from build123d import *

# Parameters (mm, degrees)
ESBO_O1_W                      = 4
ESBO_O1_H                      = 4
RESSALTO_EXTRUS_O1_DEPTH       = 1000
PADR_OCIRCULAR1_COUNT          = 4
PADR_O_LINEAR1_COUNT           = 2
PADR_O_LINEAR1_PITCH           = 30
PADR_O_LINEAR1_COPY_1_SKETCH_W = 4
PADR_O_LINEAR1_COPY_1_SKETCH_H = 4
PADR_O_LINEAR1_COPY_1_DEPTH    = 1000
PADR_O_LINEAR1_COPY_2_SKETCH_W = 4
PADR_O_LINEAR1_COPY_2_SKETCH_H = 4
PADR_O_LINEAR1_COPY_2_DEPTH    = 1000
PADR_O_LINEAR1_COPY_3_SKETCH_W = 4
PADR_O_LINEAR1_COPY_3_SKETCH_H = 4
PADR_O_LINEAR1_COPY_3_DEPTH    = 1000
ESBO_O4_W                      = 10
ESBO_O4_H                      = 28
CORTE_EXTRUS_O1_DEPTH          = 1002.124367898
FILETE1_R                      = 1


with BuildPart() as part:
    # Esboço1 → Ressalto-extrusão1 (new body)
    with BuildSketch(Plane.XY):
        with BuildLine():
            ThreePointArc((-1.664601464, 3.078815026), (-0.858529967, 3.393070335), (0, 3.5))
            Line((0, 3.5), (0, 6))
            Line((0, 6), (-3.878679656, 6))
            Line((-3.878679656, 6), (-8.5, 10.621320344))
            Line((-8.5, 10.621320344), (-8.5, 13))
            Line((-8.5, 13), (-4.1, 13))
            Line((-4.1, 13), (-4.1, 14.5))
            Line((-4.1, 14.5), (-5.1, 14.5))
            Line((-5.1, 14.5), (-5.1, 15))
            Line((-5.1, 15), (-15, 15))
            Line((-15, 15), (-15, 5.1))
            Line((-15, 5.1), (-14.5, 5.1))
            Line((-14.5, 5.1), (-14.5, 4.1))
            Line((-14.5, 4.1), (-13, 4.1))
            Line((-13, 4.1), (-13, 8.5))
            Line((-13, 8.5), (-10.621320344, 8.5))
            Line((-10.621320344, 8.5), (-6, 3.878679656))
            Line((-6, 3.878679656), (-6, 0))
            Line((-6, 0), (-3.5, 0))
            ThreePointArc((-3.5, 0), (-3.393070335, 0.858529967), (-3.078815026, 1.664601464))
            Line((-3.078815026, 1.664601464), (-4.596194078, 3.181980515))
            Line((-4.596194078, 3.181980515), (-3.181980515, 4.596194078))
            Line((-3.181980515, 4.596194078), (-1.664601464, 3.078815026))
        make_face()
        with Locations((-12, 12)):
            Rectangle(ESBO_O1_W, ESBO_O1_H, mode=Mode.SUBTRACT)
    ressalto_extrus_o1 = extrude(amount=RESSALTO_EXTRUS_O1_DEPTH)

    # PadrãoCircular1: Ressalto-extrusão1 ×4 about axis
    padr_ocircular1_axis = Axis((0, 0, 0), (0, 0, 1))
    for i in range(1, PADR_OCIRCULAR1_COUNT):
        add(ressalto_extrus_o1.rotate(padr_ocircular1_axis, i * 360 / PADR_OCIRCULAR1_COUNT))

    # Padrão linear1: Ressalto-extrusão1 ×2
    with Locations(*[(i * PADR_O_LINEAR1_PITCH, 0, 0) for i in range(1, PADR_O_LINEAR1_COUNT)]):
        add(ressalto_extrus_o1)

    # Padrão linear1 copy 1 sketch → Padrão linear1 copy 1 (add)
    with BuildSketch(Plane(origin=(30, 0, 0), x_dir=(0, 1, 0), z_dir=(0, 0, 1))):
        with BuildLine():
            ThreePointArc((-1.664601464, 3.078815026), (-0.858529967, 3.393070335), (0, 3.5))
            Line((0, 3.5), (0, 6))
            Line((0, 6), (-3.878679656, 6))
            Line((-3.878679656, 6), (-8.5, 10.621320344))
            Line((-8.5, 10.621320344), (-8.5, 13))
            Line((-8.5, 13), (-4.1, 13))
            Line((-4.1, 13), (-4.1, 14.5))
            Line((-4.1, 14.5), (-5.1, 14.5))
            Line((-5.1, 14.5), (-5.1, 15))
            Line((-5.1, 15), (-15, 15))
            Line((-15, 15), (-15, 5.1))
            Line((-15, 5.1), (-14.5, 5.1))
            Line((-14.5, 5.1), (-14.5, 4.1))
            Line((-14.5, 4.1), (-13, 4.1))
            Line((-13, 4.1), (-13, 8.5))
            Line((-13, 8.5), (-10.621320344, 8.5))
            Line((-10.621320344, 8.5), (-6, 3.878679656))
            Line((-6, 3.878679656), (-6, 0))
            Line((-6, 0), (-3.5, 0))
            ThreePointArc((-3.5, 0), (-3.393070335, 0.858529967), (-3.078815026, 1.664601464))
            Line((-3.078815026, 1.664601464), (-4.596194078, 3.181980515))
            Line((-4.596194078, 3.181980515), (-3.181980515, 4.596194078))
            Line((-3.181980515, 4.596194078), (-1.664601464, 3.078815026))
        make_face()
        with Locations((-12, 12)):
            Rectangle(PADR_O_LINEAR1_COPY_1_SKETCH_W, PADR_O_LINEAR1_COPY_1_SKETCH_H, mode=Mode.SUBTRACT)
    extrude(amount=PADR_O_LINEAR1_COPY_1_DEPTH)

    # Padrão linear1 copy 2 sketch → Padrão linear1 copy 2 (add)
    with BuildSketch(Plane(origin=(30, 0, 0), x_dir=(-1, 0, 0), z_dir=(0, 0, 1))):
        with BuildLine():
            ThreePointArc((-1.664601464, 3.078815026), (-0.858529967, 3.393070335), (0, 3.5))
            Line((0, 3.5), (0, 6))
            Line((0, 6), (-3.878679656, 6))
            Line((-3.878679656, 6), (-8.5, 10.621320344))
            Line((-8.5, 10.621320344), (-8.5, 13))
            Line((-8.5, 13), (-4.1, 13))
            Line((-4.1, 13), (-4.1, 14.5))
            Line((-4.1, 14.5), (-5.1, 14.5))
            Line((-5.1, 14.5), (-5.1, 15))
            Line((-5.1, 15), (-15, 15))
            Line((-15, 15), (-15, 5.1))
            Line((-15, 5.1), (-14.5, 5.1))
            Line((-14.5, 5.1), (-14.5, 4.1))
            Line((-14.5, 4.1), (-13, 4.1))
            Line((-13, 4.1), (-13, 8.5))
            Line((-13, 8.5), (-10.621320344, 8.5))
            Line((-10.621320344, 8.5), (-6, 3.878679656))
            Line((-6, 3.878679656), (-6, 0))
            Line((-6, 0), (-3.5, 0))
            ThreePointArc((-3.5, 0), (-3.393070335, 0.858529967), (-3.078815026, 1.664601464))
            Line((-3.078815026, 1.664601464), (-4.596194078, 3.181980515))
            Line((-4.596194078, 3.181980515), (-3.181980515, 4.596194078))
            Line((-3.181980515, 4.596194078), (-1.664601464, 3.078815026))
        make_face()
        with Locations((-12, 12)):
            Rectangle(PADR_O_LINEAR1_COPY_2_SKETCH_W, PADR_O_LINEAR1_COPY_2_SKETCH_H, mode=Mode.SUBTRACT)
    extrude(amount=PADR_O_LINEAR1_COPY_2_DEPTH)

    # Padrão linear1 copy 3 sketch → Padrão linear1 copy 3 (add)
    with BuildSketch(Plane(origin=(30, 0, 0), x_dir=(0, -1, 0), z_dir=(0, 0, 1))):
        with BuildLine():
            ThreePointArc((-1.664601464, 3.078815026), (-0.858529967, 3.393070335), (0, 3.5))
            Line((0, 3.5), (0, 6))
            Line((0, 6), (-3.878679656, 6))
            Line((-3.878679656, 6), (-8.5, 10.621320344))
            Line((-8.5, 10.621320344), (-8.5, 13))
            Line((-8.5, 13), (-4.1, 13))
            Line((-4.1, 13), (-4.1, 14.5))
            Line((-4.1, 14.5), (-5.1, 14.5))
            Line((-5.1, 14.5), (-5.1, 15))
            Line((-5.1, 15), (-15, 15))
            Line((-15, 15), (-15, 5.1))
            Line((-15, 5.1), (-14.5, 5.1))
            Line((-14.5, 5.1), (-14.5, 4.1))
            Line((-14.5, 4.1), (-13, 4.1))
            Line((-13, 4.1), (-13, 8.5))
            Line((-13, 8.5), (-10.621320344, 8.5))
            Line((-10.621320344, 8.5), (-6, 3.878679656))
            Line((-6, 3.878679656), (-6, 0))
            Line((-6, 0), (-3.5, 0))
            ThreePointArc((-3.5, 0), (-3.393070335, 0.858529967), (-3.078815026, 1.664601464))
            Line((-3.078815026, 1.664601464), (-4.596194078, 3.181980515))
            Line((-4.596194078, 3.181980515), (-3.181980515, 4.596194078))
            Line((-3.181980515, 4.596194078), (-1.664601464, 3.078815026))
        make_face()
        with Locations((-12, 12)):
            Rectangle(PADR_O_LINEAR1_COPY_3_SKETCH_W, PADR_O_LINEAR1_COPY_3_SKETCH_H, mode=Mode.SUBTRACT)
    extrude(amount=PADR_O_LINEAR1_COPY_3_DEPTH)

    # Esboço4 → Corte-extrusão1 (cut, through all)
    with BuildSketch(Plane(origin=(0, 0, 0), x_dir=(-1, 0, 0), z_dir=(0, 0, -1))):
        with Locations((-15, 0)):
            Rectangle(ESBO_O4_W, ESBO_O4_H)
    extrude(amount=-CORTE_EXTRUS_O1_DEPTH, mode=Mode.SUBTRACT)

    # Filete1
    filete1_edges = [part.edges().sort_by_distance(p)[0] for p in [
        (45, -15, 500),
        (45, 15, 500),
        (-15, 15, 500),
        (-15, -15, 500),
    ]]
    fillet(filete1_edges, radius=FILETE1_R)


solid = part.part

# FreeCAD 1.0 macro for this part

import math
import FreeCAD as App
import Part
import Sketcher

V = App.Vector
Q = App.Units.Quantity


def edges_at(feature, points):
    """Names of the edges that pass closest to the given points."""
    edges = feature.Shape.Edges
    near = lambda p: min(range(len(edges)), key=lambda i: edges[i].distToShape(Part.Vertex(*p))[0])
    return sorted({f"Edge{near(p) + 1}" for p in points})


def add_polygon(sketch, points):
    """Adds a closed chain of lines whose ends are joined by coincident constraints."""
    first, n = sketch.GeometryCount, len(points)
    for a, b in zip(points, points[1:] + points[:1]):
        sketch.addGeometry(Part.LineSegment(App.Vector(*a, 0), App.Vector(*b, 0)), False)
    for i in range(n):
        sketch.addConstraint(Sketcher.Constraint("Coincident", first + i, 2, first + (i + 1) % n, 1))

doc = App.newDocument("Part")
params = doc.addObject("Spreadsheet::Sheet", "Params")
for row, (alias, value) in enumerate([
    ("sketch1_radius", "3.5 mm"),
    ("sketch1_width", "1 mm"),
    ("sketch1_width2", "4 mm"),
    ("sketch1_length", "2 mm"),
    ("sketch1_width3", "4.4 mm"),
    ("pad1_length", "1000 mm"),
    ("linearpattern_pitch", "30 mm"),
    ("sketch2_radius", "3.5 mm"),
    ("sketch2_width", "1 mm"),
    ("sketch2_width2", "4 mm"),
    ("sketch2_length", "2 mm"),
    ("sketch2_width3", "2.5 mm"),
    ("pad2_length", "1000 mm"),
    ("sketch3_radius", "3.5 mm"),
    ("sketch3_width", "1 mm"),
    ("sketch3_width2", "4 mm"),
    ("sketch3_length", "2 mm"),
    ("sketch3_width3", "4.4 mm"),
    ("pad3_length", "1000 mm"),
    ("sketch4_radius", "3.5 mm"),
    ("sketch4_width", "1 mm"),
    ("sketch4_width2", "4 mm"),
    ("sketch4_length", "2 mm"),
    ("sketch4_width3", "2.5 mm"),
    ("pad4_length", "1000 mm"),
    ("sketch5_width", "10 mm"),
    ("sketch5_height", "28 mm"),
    ("fillet_radius", "1 mm"),
], start=1):
    params.set(f"A{row}", alias)
    params.set(f"B{row}", "=" + value)
    params.setAlias(f"B{row}", alias)

body = doc.addObject("PartDesign::Body", "Body")

sketch1 = doc.addObject("Sketcher::SketchObject", "Sketch")
body.addObject(sketch1)
sketch1.AttachmentSupport = (doc.XY_Plane, [""])
sketch1.MapMode = "FlatFace"
sketch1.addGeometry(Part.ArcOfCircle(Part.Circle(V(0, 0, 0), V(0, 0, 1), 3.5), math.radians(90), math.radians(118.39845)), False)
sketch1.addGeometry(Part.LineSegment(V(0, 3.5, 0), V(0, 6, 0)), False)
sketch1.addGeometry(Part.LineSegment(V(0, 6, 0), V(-3.87868, 6, 0)), False)
sketch1.addGeometry(Part.LineSegment(V(-3.87868, 6, 0), V(-8.5, 10.62132, 0)), False)
sketch1.addGeometry(Part.LineSegment(V(-8.5, 10.62132, 0), V(-8.5, 13, 0)), False)
sketch1.addGeometry(Part.LineSegment(V(-8.5, 13, 0), V(-4.1, 13, 0)), False)
sketch1.addGeometry(Part.LineSegment(V(-4.1, 13, 0), V(-4.1, 14.5, 0)), False)
sketch1.addGeometry(Part.LineSegment(V(-4.1, 14.5, 0), V(-5.1, 14.5, 0)), False)
sketch1.addGeometry(Part.LineSegment(V(-5.1, 14.5, 0), V(-5.1, 15, 0)), False)
sketch1.addGeometry(Part.LineSegment(V(-5.1, 15, 0), V(-15, 15, 0)), False)
sketch1.addGeometry(Part.LineSegment(V(-15, 15, 0), V(-15, 5.1, 0)), False)
sketch1.addGeometry(Part.LineSegment(V(-15, 5.1, 0), V(-14.5, 5.1, 0)), False)
sketch1.addGeometry(Part.LineSegment(V(-14.5, 5.1, 0), V(-14.5, 4.1, 0)), False)
sketch1.addGeometry(Part.LineSegment(V(-14.5, 4.1, 0), V(-13, 4.1, 0)), False)
sketch1.addGeometry(Part.LineSegment(V(-13, 4.1, 0), V(-13, 8.5, 0)), False)
sketch1.addGeometry(Part.LineSegment(V(-13, 8.5, 0), V(-10.62132, 8.5, 0)), False)
sketch1.addGeometry(Part.LineSegment(V(-10.62132, 8.5, 0), V(-6, 3.87868, 0)), False)
sketch1.addGeometry(Part.LineSegment(V(-6, 3.87868, 0), V(-6, 0, 0)), False)
sketch1.addGeometry(Part.LineSegment(V(-6, 0, 0), V(-3.5, 0, 0)), False)
sketch1.addGeometry(Part.ArcOfCircle(Part.Circle(V(0, 0, 0), V(0, 0, 1), 3.5), math.radians(151.60155), math.radians(180)), False)
sketch1.addGeometry(Part.LineSegment(V(-3.078815, 1.664601, 0), V(-4.596194, 3.181981, 0)), False)
sketch1.addGeometry(Part.LineSegment(V(-4.596194, 3.181981, 0), V(-3.181981, 4.596194, 0)), False)
sketch1.addGeometry(Part.LineSegment(V(-3.181981, 4.596194, 0), V(-1.664601, 3.078815, 0)), False)
add_polygon(sketch1, [(-10, 10), (-14, 10), (-14, 14), (-10, 14)])
sketch1.addConstraint([
    Sketcher.Constraint("Coincident", 0, 1, 1, 1),
    Sketcher.Constraint("Coincident", 1, 2, 2, 1),
    Sketcher.Constraint("Coincident", 2, 2, 3, 1),
    Sketcher.Constraint("Coincident", 3, 2, 4, 1),
    Sketcher.Constraint("Coincident", 4, 2, 5, 1),
    Sketcher.Constraint("Coincident", 5, 2, 6, 1),
    Sketcher.Constraint("Coincident", 6, 2, 7, 1),
    Sketcher.Constraint("Coincident", 7, 2, 8, 1),
    Sketcher.Constraint("Coincident", 8, 2, 9, 1),
    Sketcher.Constraint("Coincident", 9, 2, 10, 1),
    Sketcher.Constraint("Coincident", 10, 2, 11, 1),
    Sketcher.Constraint("Coincident", 11, 2, 12, 1),
    Sketcher.Constraint("Coincident", 12, 2, 13, 1),
    Sketcher.Constraint("Coincident", 13, 2, 14, 1),
    Sketcher.Constraint("Coincident", 14, 2, 15, 1),
    Sketcher.Constraint("Coincident", 15, 2, 16, 1),
    Sketcher.Constraint("Coincident", 16, 2, 17, 1),
    Sketcher.Constraint("Coincident", 17, 2, 18, 1),
    Sketcher.Constraint("Coincident", 18, 2, 19, 2),
    Sketcher.Constraint("Coincident", 19, 1, 20, 1),
    Sketcher.Constraint("Coincident", 20, 2, 21, 1),
    Sketcher.Constraint("Coincident", 21, 2, 22, 1),
    Sketcher.Constraint("Coincident", 22, 2, 0, 2),
    Sketcher.Constraint("Vertical", 1),
    Sketcher.Constraint("Horizontal", 2),
    Sketcher.Constraint("Vertical", 4),
    Sketcher.Constraint("Horizontal", 5),
    Sketcher.Constraint("Vertical", 6),
    Sketcher.Constraint("Horizontal", 7),
    Sketcher.Constraint("Vertical", 8),
    Sketcher.Constraint("Horizontal", 9),
    Sketcher.Constraint("Vertical", 10),
    Sketcher.Constraint("Horizontal", 11),
    Sketcher.Constraint("Vertical", 12),
    Sketcher.Constraint("Horizontal", 13),
    Sketcher.Constraint("Vertical", 14),
    Sketcher.Constraint("Horizontal", 15),
    Sketcher.Constraint("Vertical", 17),
    Sketcher.Constraint("Horizontal", 18),
    Sketcher.Constraint("Horizontal", 23),
    Sketcher.Constraint("Vertical", 24),
    Sketcher.Constraint("Horizontal", 25),
    Sketcher.Constraint("Vertical", 26),
    Sketcher.Constraint("Coincident", 0, 3, -1, 1),
    Sketcher.Constraint("Coincident", 19, 3, -1, 1),
    Sketcher.Constraint("Equal", 0, 19),
    Sketcher.Constraint("PointOnObject", 0, 1, -2),
    Sketcher.Constraint("PointOnObject", 17, 2, -1),
    Sketcher.Constraint("Parallel", 3, 16),
    Sketcher.Constraint("Parallel", 16, 20),
    Sketcher.Constraint("Perpendicular", 20, 21),
    Sketcher.Constraint("Perpendicular", 21, 22),
    Sketcher.Constraint("Equal", 18, 1),
    Sketcher.Constraint("Equal", 15, 4),
    Sketcher.Constraint("Equal", 13, 6),
    Sketcher.Constraint("Equal", 11, 8),
    Sketcher.Constraint("Equal", 9, 10),
    Sketcher.Constraint("Equal", 7, 12),
    Sketcher.Constraint("Equal", 5, 14),
    Sketcher.Constraint("Equal", 2, 17),
    Sketcher.Constraint("Equal", 25, 24),
    Sketcher.Constraint("Equal", 20, 22),
    Sketcher.Constraint("Radius", 0, Q("3.5 mm")),
    Sketcher.Constraint("DistanceX", 7, 2, 7, 1, Q("1 mm")),
    Sketcher.Constraint("DistanceX", 23, 2, 23, 1, Q("4 mm")),
    Sketcher.Constraint("Angle", 3, Q("135 deg")),
    Sketcher.Constraint("Distance", 21, Q("2 mm")),
    Sketcher.Constraint("DistanceX", 5, 1, 5, 2, Q("4.4 mm")),
    Sketcher.Constraint("DistanceX", 9, 2, 9, 1, Q("9.9 mm")),
    Sketcher.Constraint("DistanceX", 11, 1, 11, 2, Q("0.5 mm")),
    Sketcher.Constraint("DistanceX", 13, 1, 13, 2, Q("1.5 mm")),
    Sketcher.Constraint("DistanceX", 18, 1, 18, 2, Q("2.5 mm")),
    Sketcher.Constraint("DistanceY", -1, 1, 4, 2, Q("13 mm")),
    Sketcher.Constraint("DistanceX", 23, 2, -1, 1, Q("14 mm")),
    Sketcher.Constraint("DistanceY", -1, 1, 23, 2, Q("10 mm")),
    Sketcher.Constraint("Distance", 20, Q("2.145898 mm")),
    Sketcher.Constraint("DistanceX", 2, 2, 2, 1, Q("3.87868 mm")),
])
sketch1.setExpression("Constraints[66]", "Params.sketch1_radius")
sketch1.setExpression("Constraints[67]", "Params.sketch1_width")
sketch1.setExpression("Constraints[68]", "Params.sketch1_width2")
sketch1.setExpression("Constraints[70]", "Params.sketch1_length")
sketch1.setExpression("Constraints[71]", "Params.sketch1_width3")
pad1 = doc.addObject("PartDesign::Pad", "Pad")
body.addObject(pad1)
pad1.Profile = sketch1
pad1.setExpression("Length", "Params.pad1_length")
doc.recompute()

polarpattern = doc.addObject("PartDesign::PolarPattern", "PolarPattern")
body.addObject(polarpattern)
polarpattern.Originals = [pad1]
polarpattern.Axis = (doc.Z_Axis, [""])
polarpattern.Angle = 360
polarpattern.Occurrences = 4
body.Tip = polarpattern
doc.recompute()

linearpattern = doc.addObject("PartDesign::LinearPattern", "LinearPattern")
body.addObject(linearpattern)
linearpattern.Originals = [pad1]
linearpattern.Direction = (doc.X_Axis, [""])
linearpattern.Mode = "offset"
linearpattern.setExpression("Offset", "Params.linearpattern_pitch")
linearpattern.Occurrences = 2
body.Tip = linearpattern

sketch2 = doc.addObject("Sketcher::SketchObject", "Sketch001")
body.addObject(sketch2)
sketch2.AttachmentSupport = (doc.XY_Plane, [""])
sketch2.MapMode = "FlatFace"
sketch2.addGeometry(Part.ArcOfCircle(Part.Circle(V(30, 0, 0), V(0, 0, 1), 3.5), math.radians(180), math.radians(208.39845)), False)
sketch2.addGeometry(Part.LineSegment(V(26.5, 0, 0), V(24, 0, 0)), False)
sketch2.addGeometry(Part.LineSegment(V(24, 0, 0), V(24, -3.87868, 0)), False)
sketch2.addGeometry(Part.LineSegment(V(24, -3.87868, 0), V(19.37868, -8.5, 0)), False)
sketch2.addGeometry(Part.LineSegment(V(19.37868, -8.5, 0), V(17, -8.5, 0)), False)
sketch2.addGeometry(Part.LineSegment(V(17, -8.5, 0), V(17, -4.1, 0)), False)
sketch2.addGeometry(Part.LineSegment(V(17, -4.1, 0), V(15.5, -4.1, 0)), False)
sketch2.addGeometry(Part.LineSegment(V(15.5, -4.1, 0), V(15.5, -5.1, 0)), False)
sketch2.addGeometry(Part.LineSegment(V(15.5, -5.1, 0), V(15, -5.1, 0)), False)
sketch2.addGeometry(Part.LineSegment(V(15, -5.1, 0), V(15, -15, 0)), False)
sketch2.addGeometry(Part.LineSegment(V(15, -15, 0), V(24.9, -15, 0)), False)
sketch2.addGeometry(Part.LineSegment(V(24.9, -15, 0), V(24.9, -14.5, 0)), False)
sketch2.addGeometry(Part.LineSegment(V(24.9, -14.5, 0), V(25.9, -14.5, 0)), False)
sketch2.addGeometry(Part.LineSegment(V(25.9, -14.5, 0), V(25.9, -13, 0)), False)
sketch2.addGeometry(Part.LineSegment(V(25.9, -13, 0), V(21.5, -13, 0)), False)
sketch2.addGeometry(Part.LineSegment(V(21.5, -13, 0), V(21.5, -10.62132, 0)), False)
sketch2.addGeometry(Part.LineSegment(V(21.5, -10.62132, 0), V(26.12132, -6, 0)), False)
sketch2.addGeometry(Part.LineSegment(V(26.12132, -6, 0), V(30, -6, 0)), False)
sketch2.addGeometry(Part.LineSegment(V(30, -6, 0), V(30, -3.5, 0)), False)
sketch2.addGeometry(Part.ArcOfCircle(Part.Circle(V(30, 0, 0), V(0, 0, 1), 3.5), math.radians(-118.39845), math.radians(-90)), False)
sketch2.addGeometry(Part.LineSegment(V(28.335399, -3.078815, 0), V(26.818019, -4.596194, 0)), False)
sketch2.addGeometry(Part.LineSegment(V(26.818019, -4.596194, 0), V(25.403806, -3.181981, 0)), False)
sketch2.addGeometry(Part.LineSegment(V(25.403806, -3.181981, 0), V(26.921185, -1.664601, 0)), False)
add_polygon(sketch2, [(20, -10), (20, -14), (16, -14), (16, -10)])
sketch2.addConstraint([
    Sketcher.Constraint("Coincident", 0, 1, 1, 1),
    Sketcher.Constraint("Coincident", 1, 2, 2, 1),
    Sketcher.Constraint("Coincident", 2, 2, 3, 1),
    Sketcher.Constraint("Coincident", 3, 2, 4, 1),
    Sketcher.Constraint("Coincident", 4, 2, 5, 1),
    Sketcher.Constraint("Coincident", 5, 2, 6, 1),
    Sketcher.Constraint("Coincident", 6, 2, 7, 1),
    Sketcher.Constraint("Coincident", 7, 2, 8, 1),
    Sketcher.Constraint("Coincident", 8, 2, 9, 1),
    Sketcher.Constraint("Coincident", 9, 2, 10, 1),
    Sketcher.Constraint("Coincident", 10, 2, 11, 1),
    Sketcher.Constraint("Coincident", 11, 2, 12, 1),
    Sketcher.Constraint("Coincident", 12, 2, 13, 1),
    Sketcher.Constraint("Coincident", 13, 2, 14, 1),
    Sketcher.Constraint("Coincident", 14, 2, 15, 1),
    Sketcher.Constraint("Coincident", 15, 2, 16, 1),
    Sketcher.Constraint("Coincident", 16, 2, 17, 1),
    Sketcher.Constraint("Coincident", 17, 2, 18, 1),
    Sketcher.Constraint("Coincident", 18, 2, 19, 2),
    Sketcher.Constraint("Coincident", 19, 1, 20, 1),
    Sketcher.Constraint("Coincident", 20, 2, 21, 1),
    Sketcher.Constraint("Coincident", 21, 2, 22, 1),
    Sketcher.Constraint("Coincident", 22, 2, 0, 2),
    Sketcher.Constraint("Horizontal", 1),
    Sketcher.Constraint("Vertical", 2),
    Sketcher.Constraint("Horizontal", 4),
    Sketcher.Constraint("Vertical", 5),
    Sketcher.Constraint("Horizontal", 6),
    Sketcher.Constraint("Vertical", 7),
    Sketcher.Constraint("Horizontal", 8),
    Sketcher.Constraint("Vertical", 9),
    Sketcher.Constraint("Horizontal", 10),
    Sketcher.Constraint("Vertical", 11),
    Sketcher.Constraint("Horizontal", 12),
    Sketcher.Constraint("Vertical", 13),
    Sketcher.Constraint("Horizontal", 14),
    Sketcher.Constraint("Vertical", 15),
    Sketcher.Constraint("Horizontal", 17),
    Sketcher.Constraint("Vertical", 18),
    Sketcher.Constraint("Vertical", 23),
    Sketcher.Constraint("Horizontal", 24),
    Sketcher.Constraint("Vertical", 25),
    Sketcher.Constraint("Horizontal", 26),
    Sketcher.Constraint("Coincident", 19, 3, 0, 3),
    Sketcher.Constraint("Equal", 0, 19),
    Sketcher.Constraint("PointOnObject", 0, 3, -1),
    Sketcher.Constraint("PointOnObject", 0, 1, -1),
    Sketcher.Constraint("Parallel", 3, 16),
    Sketcher.Constraint("Parallel", 16, 20),
    Sketcher.Constraint("Perpendicular", 20, 21),
    Sketcher.Constraint("Perpendicular", 21, 22),
    Sketcher.Constraint("Vertical", 19, 3, 17, 2),
    Sketcher.Constraint("Equal", 17, 2),
    Sketcher.Constraint("Equal", 14, 5),
    Sketcher.Constraint("Equal", 12, 7),
    Sketcher.Constraint("Equal", 10, 9),
    Sketcher.Constraint("Equal", 8, 11),
    Sketcher.Constraint("Equal", 6, 13),
    Sketcher.Constraint("Equal", 4, 15),
    Sketcher.Constraint("Equal", 1, 18),
    Sketcher.Constraint("Equal", 26, 23),
    Sketcher.Constraint("Equal", 20, 22),
    Sketcher.Constraint("Radius", 0, Q("3.5 mm")),
    Sketcher.Constraint("DistanceX", 12, 1, 12, 2, Q("1 mm")),
    Sketcher.Constraint("DistanceX", 24, 2, 24, 1, Q("4 mm")),
    Sketcher.Constraint("Angle", 3, Q("-135 deg")),
    Sketcher.Constraint("Distance", 21, Q("2 mm")),
    Sketcher.Constraint("DistanceX", 1, 2, 1, 1, Q("2.5 mm")),
    Sketcher.Constraint("DistanceX", 6, 2, 6, 1, Q("1.5 mm")),
    Sketcher.Constraint("DistanceX", 8, 2, 8, 1, Q("0.5 mm")),
    Sketcher.Constraint("DistanceX", 10, 1, 10, 2, Q("9.9 mm")),
    Sketcher.Constraint("DistanceX", 14, 2, 14, 1, Q("4.4 mm")),
    Sketcher.Constraint("DistanceX", -1, 1, 0, 3, Q("30 mm")),
    Sketcher.Constraint("DistanceX", -1, 1, 4, 2, Q("17 mm")),
    Sketcher.Constraint("DistanceX", -1, 1, 23, 2, Q("20 mm")),
    Sketcher.Constraint("DistanceY", 23, 2, -1, 1, Q("14 mm")),
    Sketcher.Constraint("Distance", 20, Q("2.145898 mm")),
    Sketcher.Constraint("DistanceX", 4, 2, 4, 1, Q("2.37868 mm")),
])
sketch2.setExpression("Constraints[66]", "Params.sketch2_radius")
sketch2.setExpression("Constraints[67]", "Params.sketch2_width")
sketch2.setExpression("Constraints[68]", "Params.sketch2_width2")
sketch2.setExpression("Constraints[70]", "Params.sketch2_length")
sketch2.setExpression("Constraints[71]", "Params.sketch2_width3")
pad2 = doc.addObject("PartDesign::Pad", "Pad001")
body.addObject(pad2)
pad2.Profile = sketch2
pad2.setExpression("Length", "Params.pad2_length")

sketch3 = doc.addObject("Sketcher::SketchObject", "Sketch002")
body.addObject(sketch3)
sketch3.AttachmentSupport = (doc.XY_Plane, [""])
sketch3.MapMode = "FlatFace"
sketch3.addGeometry(Part.ArcOfCircle(Part.Circle(V(30, 0, 0), V(0, 0, 1), 3.5), math.radians(-90), math.radians(-61.60155)), False)
sketch3.addGeometry(Part.LineSegment(V(30, -3.5, 0), V(30, -6, 0)), False)
sketch3.addGeometry(Part.LineSegment(V(30, -6, 0), V(33.87868, -6, 0)), False)
sketch3.addGeometry(Part.LineSegment(V(33.87868, -6, 0), V(38.5, -10.62132, 0)), False)
sketch3.addGeometry(Part.LineSegment(V(38.5, -10.62132, 0), V(38.5, -13, 0)), False)
sketch3.addGeometry(Part.LineSegment(V(38.5, -13, 0), V(34.1, -13, 0)), False)
sketch3.addGeometry(Part.LineSegment(V(34.1, -13, 0), V(34.1, -14.5, 0)), False)
sketch3.addGeometry(Part.LineSegment(V(34.1, -14.5, 0), V(35.1, -14.5, 0)), False)
sketch3.addGeometry(Part.LineSegment(V(35.1, -14.5, 0), V(35.1, -15, 0)), False)
sketch3.addGeometry(Part.LineSegment(V(35.1, -15, 0), V(45, -15, 0)), False)
sketch3.addGeometry(Part.LineSegment(V(45, -15, 0), V(45, -5.1, 0)), False)
sketch3.addGeometry(Part.LineSegment(V(45, -5.1, 0), V(44.5, -5.1, 0)), False)
sketch3.addGeometry(Part.LineSegment(V(44.5, -5.1, 0), V(44.5, -4.1, 0)), False)
sketch3.addGeometry(Part.LineSegment(V(44.5, -4.1, 0), V(43, -4.1, 0)), False)
sketch3.addGeometry(Part.LineSegment(V(43, -4.1, 0), V(43, -8.5, 0)), False)
sketch3.addGeometry(Part.LineSegment(V(43, -8.5, 0), V(40.62132, -8.5, 0)), False)
sketch3.addGeometry(Part.LineSegment(V(40.62132, -8.5, 0), V(36, -3.87868, 0)), False)
sketch3.addGeometry(Part.LineSegment(V(36, -3.87868, 0), V(36, 0, 0)), False)
sketch3.addGeometry(Part.LineSegment(V(36, 0, 0), V(33.5, 0, 0)), False)
sketch3.addGeometry(Part.ArcOfCircle(Part.Circle(V(30, 0, 0), V(0, 0, 1), 3.5), math.radians(-28.39845), math.radians(0)), False)
sketch3.addGeometry(Part.LineSegment(V(33.078815, -1.664601, 0), V(34.596194, -3.181981, 0)), False)
sketch3.addGeometry(Part.LineSegment(V(34.596194, -3.181981, 0), V(33.181981, -4.596194, 0)), False)
sketch3.addGeometry(Part.LineSegment(V(33.181981, -4.596194, 0), V(31.664601, -3.078815, 0)), False)
add_polygon(sketch3, [(40, -10), (44, -10), (44, -14), (40, -14)])
sketch3.addConstraint([
    Sketcher.Constraint("Coincident", 0, 1, 1, 1),
    Sketcher.Constraint("Coincident", 1, 2, 2, 1),
    Sketcher.Constraint("Coincident", 2, 2, 3, 1),
    Sketcher.Constraint("Coincident", 3, 2, 4, 1),
    Sketcher.Constraint("Coincident", 4, 2, 5, 1),
    Sketcher.Constraint("Coincident", 5, 2, 6, 1),
    Sketcher.Constraint("Coincident", 6, 2, 7, 1),
    Sketcher.Constraint("Coincident", 7, 2, 8, 1),
    Sketcher.Constraint("Coincident", 8, 2, 9, 1),
    Sketcher.Constraint("Coincident", 9, 2, 10, 1),
    Sketcher.Constraint("Coincident", 10, 2, 11, 1),
    Sketcher.Constraint("Coincident", 11, 2, 12, 1),
    Sketcher.Constraint("Coincident", 12, 2, 13, 1),
    Sketcher.Constraint("Coincident", 13, 2, 14, 1),
    Sketcher.Constraint("Coincident", 14, 2, 15, 1),
    Sketcher.Constraint("Coincident", 15, 2, 16, 1),
    Sketcher.Constraint("Coincident", 16, 2, 17, 1),
    Sketcher.Constraint("Coincident", 17, 2, 18, 1),
    Sketcher.Constraint("Coincident", 18, 2, 19, 2),
    Sketcher.Constraint("Coincident", 19, 1, 20, 1),
    Sketcher.Constraint("Coincident", 20, 2, 21, 1),
    Sketcher.Constraint("Coincident", 21, 2, 22, 1),
    Sketcher.Constraint("Coincident", 22, 2, 0, 2),
    Sketcher.Constraint("Vertical", 1),
    Sketcher.Constraint("Horizontal", 2),
    Sketcher.Constraint("Vertical", 4),
    Sketcher.Constraint("Horizontal", 5),
    Sketcher.Constraint("Vertical", 6),
    Sketcher.Constraint("Horizontal", 7),
    Sketcher.Constraint("Vertical", 8),
    Sketcher.Constraint("Horizontal", 9),
    Sketcher.Constraint("Vertical", 10),
    Sketcher.Constraint("Horizontal", 11),
    Sketcher.Constraint("Vertical", 12),
    Sketcher.Constraint("Horizontal", 13),
    Sketcher.Constraint("Vertical", 14),
    Sketcher.Constraint("Horizontal", 15),
    Sketcher.Constraint("Vertical", 17),
    Sketcher.Constraint("Horizontal", 18),
    Sketcher.Constraint("Horizontal", 23),
    Sketcher.Constraint("Vertical", 24),
    Sketcher.Constraint("Horizontal", 25),
    Sketcher.Constraint("Vertical", 26),
    Sketcher.Constraint("Coincident", 19, 3, 0, 3),
    Sketcher.Constraint("Equal", 0, 19),
    Sketcher.Constraint("PointOnObject", 0, 3, -1),
    Sketcher.Constraint("PointOnObject", 17, 2, -1),
    Sketcher.Constraint("Parallel", 3, 16),
    Sketcher.Constraint("Parallel", 16, 20),
    Sketcher.Constraint("Perpendicular", 20, 21),
    Sketcher.Constraint("Perpendicular", 21, 22),
    Sketcher.Constraint("Vertical", 19, 3, 0, 1),
    Sketcher.Constraint("Equal", 18, 1),
    Sketcher.Constraint("Equal", 15, 4),
    Sketcher.Constraint("Equal", 13, 6),
    Sketcher.Constraint("Equal", 11, 8),
    Sketcher.Constraint("Equal", 9, 10),
    Sketcher.Constraint("Equal", 7, 12),
    Sketcher.Constraint("Equal", 5, 14),
    Sketcher.Constraint("Equal", 2, 17),
    Sketcher.Constraint("Equal", 25, 24),
    Sketcher.Constraint("Equal", 20, 22),
    Sketcher.Constraint("Radius", 0, Q("3.5 mm")),
    Sketcher.Constraint("DistanceX", 7, 1, 7, 2, Q("1 mm")),
    Sketcher.Constraint("DistanceX", 23, 1, 23, 2, Q("4 mm")),
    Sketcher.Constraint("Angle", 3, Q("-45 deg")),
    Sketcher.Constraint("Distance", 21, Q("2 mm")),
    Sketcher.Constraint("DistanceX", 5, 2, 5, 1, Q("4.4 mm")),
    Sketcher.Constraint("DistanceX", 9, 1, 9, 2, Q("9.9 mm")),
    Sketcher.Constraint("DistanceX", 11, 2, 11, 1, Q("0.5 mm")),
    Sketcher.Constraint("DistanceX", 13, 2, 13, 1, Q("1.5 mm")),
    Sketcher.Constraint("DistanceX", 18, 2, 18, 1, Q("2.5 mm")),
    Sketcher.Constraint("DistanceX", -1, 1, 0, 3, Q("30 mm")),
    Sketcher.Constraint("DistanceY", 4, 2, -1, 1, Q("13 mm")),
    Sketcher.Constraint("DistanceX", -1, 1, 23, 2, Q("44 mm")),
    Sketcher.Constraint("DistanceY", 23, 2, -1, 1, Q("10 mm")),
    Sketcher.Constraint("Distance", 20, Q("2.145898 mm")),
    Sketcher.Constraint("DistanceX", 2, 1, 2, 2, Q("3.87868 mm")),
])
sketch3.setExpression("Constraints[66]", "Params.sketch3_radius")
sketch3.setExpression("Constraints[67]", "Params.sketch3_width")
sketch3.setExpression("Constraints[68]", "Params.sketch3_width2")
sketch3.setExpression("Constraints[70]", "Params.sketch3_length")
sketch3.setExpression("Constraints[71]", "Params.sketch3_width3")
pad3 = doc.addObject("PartDesign::Pad", "Pad002")
body.addObject(pad3)
pad3.Profile = sketch3
pad3.setExpression("Length", "Params.pad3_length")

sketch4 = doc.addObject("Sketcher::SketchObject", "Sketch003")
body.addObject(sketch4)
sketch4.AttachmentSupport = (doc.XY_Plane, [""])
sketch4.MapMode = "FlatFace"
sketch4.addGeometry(Part.ArcOfCircle(Part.Circle(V(30, 0, 0), V(0, 0, 1), 3.5), math.radians(0), math.radians(28.39845)), False)
sketch4.addGeometry(Part.LineSegment(V(33.5, 0, 0), V(36, 0, 0)), False)
sketch4.addGeometry(Part.LineSegment(V(36, 0, 0), V(36, 3.87868, 0)), False)
sketch4.addGeometry(Part.LineSegment(V(36, 3.87868, 0), V(40.62132, 8.5, 0)), False)
sketch4.addGeometry(Part.LineSegment(V(40.62132, 8.5, 0), V(43, 8.5, 0)), False)
sketch4.addGeometry(Part.LineSegment(V(43, 8.5, 0), V(43, 4.1, 0)), False)
sketch4.addGeometry(Part.LineSegment(V(43, 4.1, 0), V(44.5, 4.1, 0)), False)
sketch4.addGeometry(Part.LineSegment(V(44.5, 4.1, 0), V(44.5, 5.1, 0)), False)
sketch4.addGeometry(Part.LineSegment(V(44.5, 5.1, 0), V(45, 5.1, 0)), False)
sketch4.addGeometry(Part.LineSegment(V(45, 5.1, 0), V(45, 15, 0)), False)
sketch4.addGeometry(Part.LineSegment(V(45, 15, 0), V(35.1, 15, 0)), False)
sketch4.addGeometry(Part.LineSegment(V(35.1, 15, 0), V(35.1, 14.5, 0)), False)
sketch4.addGeometry(Part.LineSegment(V(35.1, 14.5, 0), V(34.1, 14.5, 0)), False)
sketch4.addGeometry(Part.LineSegment(V(34.1, 14.5, 0), V(34.1, 13, 0)), False)
sketch4.addGeometry(Part.LineSegment(V(34.1, 13, 0), V(38.5, 13, 0)), False)
sketch4.addGeometry(Part.LineSegment(V(38.5, 13, 0), V(38.5, 10.62132, 0)), False)
sketch4.addGeometry(Part.LineSegment(V(38.5, 10.62132, 0), V(33.87868, 6, 0)), False)
sketch4.addGeometry(Part.LineSegment(V(33.87868, 6, 0), V(30, 6, 0)), False)
sketch4.addGeometry(Part.LineSegment(V(30, 6, 0), V(30, 3.5, 0)), False)
sketch4.addGeometry(Part.ArcOfCircle(Part.Circle(V(30, 0, 0), V(0, 0, 1), 3.5), math.radians(61.60155), math.radians(90)), False)
sketch4.addGeometry(Part.LineSegment(V(31.664601, 3.078815, 0), V(33.181981, 4.596194, 0)), False)
sketch4.addGeometry(Part.LineSegment(V(33.181981, 4.596194, 0), V(34.596194, 3.181981, 0)), False)
sketch4.addGeometry(Part.LineSegment(V(34.596194, 3.181981, 0), V(33.078815, 1.664601, 0)), False)
add_polygon(sketch4, [(40, 10), (40, 14), (44, 14), (44, 10)])
sketch4.addConstraint([
    Sketcher.Constraint("Coincident", 0, 1, 1, 1),
    Sketcher.Constraint("Coincident", 1, 2, 2, 1),
    Sketcher.Constraint("Coincident", 2, 2, 3, 1),
    Sketcher.Constraint("Coincident", 3, 2, 4, 1),
    Sketcher.Constraint("Coincident", 4, 2, 5, 1),
    Sketcher.Constraint("Coincident", 5, 2, 6, 1),
    Sketcher.Constraint("Coincident", 6, 2, 7, 1),
    Sketcher.Constraint("Coincident", 7, 2, 8, 1),
    Sketcher.Constraint("Coincident", 8, 2, 9, 1),
    Sketcher.Constraint("Coincident", 9, 2, 10, 1),
    Sketcher.Constraint("Coincident", 10, 2, 11, 1),
    Sketcher.Constraint("Coincident", 11, 2, 12, 1),
    Sketcher.Constraint("Coincident", 12, 2, 13, 1),
    Sketcher.Constraint("Coincident", 13, 2, 14, 1),
    Sketcher.Constraint("Coincident", 14, 2, 15, 1),
    Sketcher.Constraint("Coincident", 15, 2, 16, 1),
    Sketcher.Constraint("Coincident", 16, 2, 17, 1),
    Sketcher.Constraint("Coincident", 17, 2, 18, 1),
    Sketcher.Constraint("Coincident", 18, 2, 19, 2),
    Sketcher.Constraint("Coincident", 19, 1, 20, 1),
    Sketcher.Constraint("Coincident", 20, 2, 21, 1),
    Sketcher.Constraint("Coincident", 21, 2, 22, 1),
    Sketcher.Constraint("Coincident", 22, 2, 0, 2),
    Sketcher.Constraint("Horizontal", 1),
    Sketcher.Constraint("Vertical", 2),
    Sketcher.Constraint("Horizontal", 4),
    Sketcher.Constraint("Vertical", 5),
    Sketcher.Constraint("Horizontal", 6),
    Sketcher.Constraint("Vertical", 7),
    Sketcher.Constraint("Horizontal", 8),
    Sketcher.Constraint("Vertical", 9),
    Sketcher.Constraint("Horizontal", 10),
    Sketcher.Constraint("Vertical", 11),
    Sketcher.Constraint("Horizontal", 12),
    Sketcher.Constraint("Vertical", 13),
    Sketcher.Constraint("Horizontal", 14),
    Sketcher.Constraint("Vertical", 15),
    Sketcher.Constraint("Horizontal", 17),
    Sketcher.Constraint("Vertical", 18),
    Sketcher.Constraint("Vertical", 23),
    Sketcher.Constraint("Horizontal", 24),
    Sketcher.Constraint("Vertical", 25),
    Sketcher.Constraint("Horizontal", 26),
    Sketcher.Constraint("Coincident", 19, 3, 0, 3),
    Sketcher.Constraint("Equal", 0, 19),
    Sketcher.Constraint("PointOnObject", 0, 3, -1),
    Sketcher.Constraint("PointOnObject", 0, 1, -1),
    Sketcher.Constraint("Parallel", 3, 16),
    Sketcher.Constraint("Parallel", 16, 20),
    Sketcher.Constraint("Perpendicular", 20, 21),
    Sketcher.Constraint("Perpendicular", 21, 22),
    Sketcher.Constraint("Vertical", 19, 3, 17, 2),
    Sketcher.Constraint("Equal", 17, 2),
    Sketcher.Constraint("Equal", 14, 5),
    Sketcher.Constraint("Equal", 12, 7),
    Sketcher.Constraint("Equal", 10, 9),
    Sketcher.Constraint("Equal", 8, 11),
    Sketcher.Constraint("Equal", 6, 13),
    Sketcher.Constraint("Equal", 4, 15),
    Sketcher.Constraint("Equal", 1, 18),
    Sketcher.Constraint("Equal", 26, 23),
    Sketcher.Constraint("Equal", 20, 22),
    Sketcher.Constraint("Radius", 0, Q("3.5 mm")),
    Sketcher.Constraint("DistanceX", 12, 2, 12, 1, Q("1 mm")),
    Sketcher.Constraint("DistanceX", 24, 1, 24, 2, Q("4 mm")),
    Sketcher.Constraint("Angle", 3, Q("45 deg")),
    Sketcher.Constraint("Distance", 21, Q("2 mm")),
    Sketcher.Constraint("DistanceX", 1, 1, 1, 2, Q("2.5 mm")),
    Sketcher.Constraint("DistanceX", 6, 1, 6, 2, Q("1.5 mm")),
    Sketcher.Constraint("DistanceX", 8, 1, 8, 2, Q("0.5 mm")),
    Sketcher.Constraint("DistanceX", 10, 2, 10, 1, Q("9.9 mm")),
    Sketcher.Constraint("DistanceX", 14, 1, 14, 2, Q("4.4 mm")),
    Sketcher.Constraint("DistanceX", -1, 1, 0, 3, Q("30 mm")),
    Sketcher.Constraint("DistanceX", -1, 1, 4, 2, Q("43 mm")),
    Sketcher.Constraint("DistanceX", -1, 1, 23, 2, Q("40 mm")),
    Sketcher.Constraint("DistanceY", -1, 1, 23, 2, Q("14 mm")),
    Sketcher.Constraint("Distance", 20, Q("2.145898 mm")),
    Sketcher.Constraint("DistanceX", 4, 1, 4, 2, Q("2.37868 mm")),
])
sketch4.setExpression("Constraints[66]", "Params.sketch4_radius")
sketch4.setExpression("Constraints[67]", "Params.sketch4_width")
sketch4.setExpression("Constraints[68]", "Params.sketch4_width2")
sketch4.setExpression("Constraints[70]", "Params.sketch4_length")
sketch4.setExpression("Constraints[71]", "Params.sketch4_width3")
pad4 = doc.addObject("PartDesign::Pad", "Pad003")
body.addObject(pad4)
pad4.Profile = sketch4
pad4.setExpression("Length", "Params.pad4_length")

sketch5 = doc.addObject("Sketcher::SketchObject", "Sketch004")
body.addObject(sketch5)
sketch5.AttachmentSupport = (doc.XY_Plane, [""])
sketch5.MapMode = "FlatFace"
add_polygon(sketch5, [(20, 14), (20, -14), (10, -14), (10, 14)])
sketch5.addConstraint([
    Sketcher.Constraint("Vertical", 0),
    Sketcher.Constraint("Horizontal", 1),
    Sketcher.Constraint("Vertical", 2),
    Sketcher.Constraint("Horizontal", 3),
    Sketcher.Constraint("DistanceX", 1, 2, 1, 1, Q("10 mm")),
    Sketcher.Constraint("DistanceY", 0, 2, 0, 1, Q("28 mm")),
    Sketcher.Constraint("DistanceX", -1, 1, 0, 2, Q("20 mm")),
    Sketcher.Constraint("DistanceY", 0, 2, -1, 1, Q("14 mm")),
])
sketch5.setExpression("Constraints[8]", "Params.sketch5_width")
sketch5.setExpression("Constraints[9]", "Params.sketch5_height")
pocket1 = doc.addObject("PartDesign::Pocket", "Pocket")
body.addObject(pocket1)
pocket1.Profile = sketch5
pocket1.Type = "ThroughAll"
pocket1.Reversed = True
doc.recompute()

fillet = doc.addObject("PartDesign::Fillet", "Fillet")
body.addObject(fillet)
fillet.Base = (pocket1, edges_at(pocket1, [
    (45, -15, 500),
    (45, 15, 500),
    (-15, 15, 500),
    (-15, -15, 500),
]))
fillet.setExpression("Radius", "Params.fillet_radius")

doc.recompute()
